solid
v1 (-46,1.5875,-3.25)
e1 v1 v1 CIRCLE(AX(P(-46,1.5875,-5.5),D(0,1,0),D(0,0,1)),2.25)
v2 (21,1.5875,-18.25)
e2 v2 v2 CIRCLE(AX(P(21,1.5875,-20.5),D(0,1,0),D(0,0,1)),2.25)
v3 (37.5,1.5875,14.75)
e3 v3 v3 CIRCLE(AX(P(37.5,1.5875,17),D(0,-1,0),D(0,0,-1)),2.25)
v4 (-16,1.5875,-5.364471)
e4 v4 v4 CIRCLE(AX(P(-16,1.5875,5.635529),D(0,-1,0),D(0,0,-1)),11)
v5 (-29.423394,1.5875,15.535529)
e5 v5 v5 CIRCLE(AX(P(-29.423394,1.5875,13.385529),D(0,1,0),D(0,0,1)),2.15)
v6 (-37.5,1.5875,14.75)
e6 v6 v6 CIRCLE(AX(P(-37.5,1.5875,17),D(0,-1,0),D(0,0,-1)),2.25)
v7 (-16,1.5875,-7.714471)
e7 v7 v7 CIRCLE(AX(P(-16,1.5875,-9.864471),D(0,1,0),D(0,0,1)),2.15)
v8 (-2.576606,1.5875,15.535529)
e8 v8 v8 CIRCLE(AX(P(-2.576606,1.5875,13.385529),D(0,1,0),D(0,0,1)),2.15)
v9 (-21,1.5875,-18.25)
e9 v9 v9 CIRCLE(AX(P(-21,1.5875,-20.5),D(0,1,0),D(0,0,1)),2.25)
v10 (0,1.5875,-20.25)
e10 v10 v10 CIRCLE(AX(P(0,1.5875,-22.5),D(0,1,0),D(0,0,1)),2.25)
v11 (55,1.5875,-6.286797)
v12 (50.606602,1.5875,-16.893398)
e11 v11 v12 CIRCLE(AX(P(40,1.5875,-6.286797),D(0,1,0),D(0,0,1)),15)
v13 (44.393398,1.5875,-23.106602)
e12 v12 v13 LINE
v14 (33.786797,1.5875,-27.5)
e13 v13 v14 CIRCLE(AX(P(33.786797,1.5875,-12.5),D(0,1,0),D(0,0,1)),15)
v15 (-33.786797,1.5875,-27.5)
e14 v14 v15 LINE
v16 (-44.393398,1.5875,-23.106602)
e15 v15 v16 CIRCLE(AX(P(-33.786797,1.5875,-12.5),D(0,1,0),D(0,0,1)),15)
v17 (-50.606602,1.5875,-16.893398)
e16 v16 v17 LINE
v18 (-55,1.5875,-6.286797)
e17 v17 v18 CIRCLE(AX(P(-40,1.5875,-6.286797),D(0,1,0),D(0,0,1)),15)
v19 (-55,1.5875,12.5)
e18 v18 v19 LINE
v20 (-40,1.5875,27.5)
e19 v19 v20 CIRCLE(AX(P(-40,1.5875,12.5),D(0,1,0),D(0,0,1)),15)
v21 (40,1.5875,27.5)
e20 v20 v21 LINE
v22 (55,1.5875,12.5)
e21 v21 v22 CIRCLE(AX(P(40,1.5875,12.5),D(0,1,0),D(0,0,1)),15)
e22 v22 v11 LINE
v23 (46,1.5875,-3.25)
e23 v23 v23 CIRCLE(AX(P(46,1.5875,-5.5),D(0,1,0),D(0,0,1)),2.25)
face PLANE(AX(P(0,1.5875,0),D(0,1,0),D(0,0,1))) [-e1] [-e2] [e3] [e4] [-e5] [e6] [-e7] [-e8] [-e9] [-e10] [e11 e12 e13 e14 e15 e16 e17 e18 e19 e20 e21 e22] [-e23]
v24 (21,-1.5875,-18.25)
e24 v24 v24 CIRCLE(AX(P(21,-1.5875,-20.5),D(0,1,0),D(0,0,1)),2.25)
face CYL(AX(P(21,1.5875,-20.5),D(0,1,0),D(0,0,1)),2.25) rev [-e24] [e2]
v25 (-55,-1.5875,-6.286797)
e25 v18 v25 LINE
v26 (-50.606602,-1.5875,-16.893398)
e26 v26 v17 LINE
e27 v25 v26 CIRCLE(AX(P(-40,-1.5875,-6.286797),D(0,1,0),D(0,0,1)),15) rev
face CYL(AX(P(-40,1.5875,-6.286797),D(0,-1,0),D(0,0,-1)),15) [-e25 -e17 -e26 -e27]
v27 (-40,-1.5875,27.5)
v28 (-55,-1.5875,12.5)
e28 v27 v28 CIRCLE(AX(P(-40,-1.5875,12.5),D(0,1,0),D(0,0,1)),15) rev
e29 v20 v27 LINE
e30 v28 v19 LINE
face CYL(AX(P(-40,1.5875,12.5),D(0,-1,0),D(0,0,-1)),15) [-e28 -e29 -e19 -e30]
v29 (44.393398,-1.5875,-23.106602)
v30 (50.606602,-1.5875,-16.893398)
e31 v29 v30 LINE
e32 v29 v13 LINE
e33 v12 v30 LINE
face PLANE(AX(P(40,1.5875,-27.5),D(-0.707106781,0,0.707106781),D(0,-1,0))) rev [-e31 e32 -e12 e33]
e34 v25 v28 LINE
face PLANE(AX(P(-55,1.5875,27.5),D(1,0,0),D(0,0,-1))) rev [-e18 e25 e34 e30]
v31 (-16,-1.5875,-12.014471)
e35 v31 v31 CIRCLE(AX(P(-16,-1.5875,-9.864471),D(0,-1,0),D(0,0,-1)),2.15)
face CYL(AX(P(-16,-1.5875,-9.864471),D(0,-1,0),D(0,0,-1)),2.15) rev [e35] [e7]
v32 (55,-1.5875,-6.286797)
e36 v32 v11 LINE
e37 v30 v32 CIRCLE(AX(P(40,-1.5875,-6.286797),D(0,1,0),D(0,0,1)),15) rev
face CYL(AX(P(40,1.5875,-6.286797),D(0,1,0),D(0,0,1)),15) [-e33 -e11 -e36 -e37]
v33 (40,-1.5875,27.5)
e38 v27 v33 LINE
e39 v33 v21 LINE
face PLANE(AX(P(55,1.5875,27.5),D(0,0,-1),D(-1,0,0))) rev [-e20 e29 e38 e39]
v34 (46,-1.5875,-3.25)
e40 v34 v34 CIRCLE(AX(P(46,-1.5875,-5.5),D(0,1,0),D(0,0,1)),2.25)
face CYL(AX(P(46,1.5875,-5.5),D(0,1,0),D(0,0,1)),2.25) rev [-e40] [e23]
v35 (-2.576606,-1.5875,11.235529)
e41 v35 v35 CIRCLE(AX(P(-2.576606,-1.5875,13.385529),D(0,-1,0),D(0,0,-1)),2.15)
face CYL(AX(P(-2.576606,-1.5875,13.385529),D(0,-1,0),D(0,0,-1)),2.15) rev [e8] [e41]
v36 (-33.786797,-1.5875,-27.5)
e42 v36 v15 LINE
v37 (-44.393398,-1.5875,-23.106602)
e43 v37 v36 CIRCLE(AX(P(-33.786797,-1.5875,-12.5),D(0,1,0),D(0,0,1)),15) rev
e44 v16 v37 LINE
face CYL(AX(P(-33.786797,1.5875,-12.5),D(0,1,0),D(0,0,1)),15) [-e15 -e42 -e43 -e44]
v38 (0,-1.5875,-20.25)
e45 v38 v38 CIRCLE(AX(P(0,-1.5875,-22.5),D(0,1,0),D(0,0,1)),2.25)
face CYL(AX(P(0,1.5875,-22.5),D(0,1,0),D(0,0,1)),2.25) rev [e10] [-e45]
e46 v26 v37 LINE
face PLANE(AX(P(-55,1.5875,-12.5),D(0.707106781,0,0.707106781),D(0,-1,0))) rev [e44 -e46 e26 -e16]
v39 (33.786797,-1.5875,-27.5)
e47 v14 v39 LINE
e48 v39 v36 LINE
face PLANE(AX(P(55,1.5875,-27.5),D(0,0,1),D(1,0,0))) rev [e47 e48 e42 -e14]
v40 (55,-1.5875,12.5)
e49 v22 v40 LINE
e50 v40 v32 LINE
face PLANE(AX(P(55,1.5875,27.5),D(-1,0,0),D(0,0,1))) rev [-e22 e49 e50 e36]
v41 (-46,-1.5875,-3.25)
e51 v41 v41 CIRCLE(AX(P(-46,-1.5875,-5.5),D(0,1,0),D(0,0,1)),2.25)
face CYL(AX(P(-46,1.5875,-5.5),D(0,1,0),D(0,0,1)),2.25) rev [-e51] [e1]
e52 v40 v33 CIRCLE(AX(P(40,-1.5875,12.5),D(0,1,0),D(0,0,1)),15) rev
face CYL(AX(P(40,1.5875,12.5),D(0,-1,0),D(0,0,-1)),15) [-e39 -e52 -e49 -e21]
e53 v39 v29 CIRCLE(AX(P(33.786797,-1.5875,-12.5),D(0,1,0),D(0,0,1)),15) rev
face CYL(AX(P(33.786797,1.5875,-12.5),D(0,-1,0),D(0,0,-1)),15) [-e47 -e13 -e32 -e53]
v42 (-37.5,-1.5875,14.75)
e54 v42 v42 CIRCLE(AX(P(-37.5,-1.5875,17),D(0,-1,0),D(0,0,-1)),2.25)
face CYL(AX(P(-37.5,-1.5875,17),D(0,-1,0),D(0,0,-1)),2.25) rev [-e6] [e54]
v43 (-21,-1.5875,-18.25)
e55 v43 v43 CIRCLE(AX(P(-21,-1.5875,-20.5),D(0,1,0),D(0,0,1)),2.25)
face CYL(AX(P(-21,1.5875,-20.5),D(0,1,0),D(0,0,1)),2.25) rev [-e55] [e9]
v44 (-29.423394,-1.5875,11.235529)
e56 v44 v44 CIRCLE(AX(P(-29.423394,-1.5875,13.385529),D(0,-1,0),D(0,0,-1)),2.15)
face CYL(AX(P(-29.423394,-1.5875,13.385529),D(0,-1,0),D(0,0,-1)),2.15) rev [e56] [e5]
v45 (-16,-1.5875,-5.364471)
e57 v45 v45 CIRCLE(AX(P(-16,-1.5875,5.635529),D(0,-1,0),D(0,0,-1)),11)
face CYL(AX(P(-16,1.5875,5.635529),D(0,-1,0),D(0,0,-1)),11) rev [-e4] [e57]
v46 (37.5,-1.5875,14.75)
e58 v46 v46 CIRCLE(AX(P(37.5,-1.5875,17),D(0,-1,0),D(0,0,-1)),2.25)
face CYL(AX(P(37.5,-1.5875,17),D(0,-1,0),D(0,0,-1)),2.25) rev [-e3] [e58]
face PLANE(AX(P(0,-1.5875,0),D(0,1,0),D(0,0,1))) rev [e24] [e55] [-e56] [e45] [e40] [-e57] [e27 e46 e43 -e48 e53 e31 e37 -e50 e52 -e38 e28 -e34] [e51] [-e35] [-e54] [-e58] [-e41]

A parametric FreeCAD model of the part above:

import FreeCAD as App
import Part
import Sketcher
from FreeCAD import Vector


def edges_at(feature, points):
    """Names of the edges that pass closest to the given points."""
    edges = feature.Shape.Edges
    near = lambda p: min(range(len(edges)), key=lambda i: edges[i].distToShape(Part.Vertex(*p))[0])
    return sorted({f"Edge{near(p) + 1}" for p in points})


def add_polygon(sketch, points):
    """Adds a closed chain of lines whose ends are joined by coincident constraints."""
    first, n = sketch.GeometryCount, len(points)
    for a, b in zip(points, points[1:] + points[:1]):
        sketch.addGeometry(Part.LineSegment(App.Vector(*a, 0), App.Vector(*b, 0)), False)
    for i in range(n):
        sketch.addConstraint(Sketcher.Constraint("Coincident", first + i, 2, first + (i + 1) % n, 1))

doc = App.newDocument("Part")
params = doc.addObject("Spreadsheet::Sheet", "Params")
for row, (alias, value) in enumerate([
    ("sketch1_width", "110 mm"),
    ("sketch1_height", "55 mm"),
    ("pad1_length", "3.175 mm"),
    ("sketch2_diameter", "4.5 mm"),
    ("hole_diameter", "4.5 mm"),
    ("sketch3_diameter", "4.5 mm"),
    ("hole2_diameter", "4.5 mm"),
    ("chamfer_size", "15 mm"),
    ("fillet_radius", "15 mm"),
    ("sketch4_diameter", "22 mm"),
    ("sketch5_diameter", "4.3 mm"),
    ("hole3_diameter", "4.3 mm"),
    ("hole3_depth", "3.175 mm"),
], start=1):
    params.set(f"A{row}", alias)
    params.set(f"B{row}", "=" + value)
    params.setAlias(f"B{row}", alias)

body = doc.addObject("PartDesign::Body", "Body")

sketch1 = body.newObject("Sketcher::SketchObject", "Sketch")
sketch1.AttachmentSupport = (doc.getObject("XZ_Plane"), [""])
sketch1.MapMode = "FlatFace"
add_polygon(sketch1, [(-55, -28), (-55, 28), (55, 28), (55, -28)])
sketch1.addConstraint([
    Sketcher.Constraint("Vertical", 0),
    Sketcher.Constraint("Horizontal", 1),
    Sketcher.Constraint("Vertical", 2),
    Sketcher.Constraint("Horizontal", 3),
    Sketcher.Constraint("Symmetric", 0, 2, 2, 2, -1, 1),
    Sketcher.Constraint("DistanceX", 1, 1, 1, 2, 110.0),
    Sketcher.Constraint("DistanceY", 0, 1, 0, 2, 55.0),
])
sketch1.setExpression("Constraints[9]", "Params.sketch1_width")
sketch1.setExpression("Constraints[10]", "Params.sketch1_height")
pad1 = body.newObject("PartDesign::Pad", "Pad")
pad1.Profile = sketch1
pad1.setExpression("Length", "Params.pad1_length")
pad1.Midplane = True

sketch2 = body.newObject("Sketcher::SketchObject", "Sketch001")
sketch2.AttachmentSupport = (doc.getObject("XZ_Plane"), [""])
sketch2.MapMode = "FlatFace"
sketch2.AttachmentOffset = App.Placement(Vector(0, 0, -1.5875), App.Rotation())
sketch2.addGeometry([
    Part.Circle(Vector(-46, -5.5, 0), Vector(0, 0, 1), 2.2),
    Part.Circle(Vector(-21, -20.5, 0), Vector(0, 0, 1), 2.2),
    Part.Circle(Vector(21, -20.5, 0), Vector(0, 0, 1), 2.2),
    Part.Circle(Vector(46, -5.5, 0), Vector(0, 0, 1), 2.2),
    Part.Circle(Vector(0, -22.5, 0), Vector(0, 0, 1), 2.2),
], False)
sketch2.addConstraint([
    Sketcher.Constraint("Equal", 0, 1),
    Sketcher.Constraint("Equal", 1, 2),
    Sketcher.Constraint("Equal", 2, 3),
    Sketcher.Constraint("Equal", 3, 4),
    Sketcher.Constraint("Symmetric", 1, 3, 2, 3, -2),
    Sketcher.Constraint("Symmetric", 0, 3, 3, 3, -2),
    Sketcher.Constraint("PointOnObject", 4, 3, -2),
    Sketcher.Constraint("Diameter", 0, 4.5),
    Sketcher.Constraint("DistanceX", 0, 3, -1, 1, 46.0),
    Sketcher.Constraint("DistanceX", 1, 3, -1, 1, 21.0),
    Sketcher.Constraint("DistanceY", 1, 3, 0, 3, 15.0),
    Sketcher.Constraint("DistanceY", 4, 3, 1, 3, 2.0),
    Sketcher.Constraint("DistanceY", 0, 3, -1, 1, 5.5),
])
sketch2.setExpression("Constraints[7]", "Params.sketch2_diameter")
doc.recompute()
hole = body.newObject("PartDesign::Hole", "Hole")
hole.Profile = sketch2
hole.ThreadType = "None"
hole.setExpression("Diameter", "Params.hole_diameter")
hole.DepthType = "ThroughAll"
hole.Reversed = True

sketch3 = body.newObject("Sketcher::SketchObject", "Sketch002")
sketch3.AttachmentSupport = (doc.getObject("XZ_Plane"), [""])
sketch3.MapMode = "FlatFace"
sketch3.AttachmentOffset = App.Placement(Vector(0, 0, 1.5875), App.Rotation())
sketch3.addGeometry([
    Part.Circle(Vector(-37.5, 17, 0), Vector(0, 0, 1), 2.2),
    Part.Circle(Vector(37.5, 17, 0), Vector(0, 0, 1), 2.2),
], False)
sketch3.addConstraint([
    Sketcher.Constraint("Equal", 0, 1),
    Sketcher.Constraint("Symmetric", 0, 3, 1, 3, -2),
    Sketcher.Constraint("Diameter", 0, 4.5),
    Sketcher.Constraint("DistanceY", -1, 1, 0, 3, 17.0),
    Sketcher.Constraint("DistanceX", 0, 3, 1, 3, 75.0),
])
sketch3.setExpression("Constraints[2]", "Params.sketch3_diameter")
doc.recompute()
hole2 = body.newObject("PartDesign::Hole", "Hole001")
hole2.Profile = sketch3
hole2.ThreadType = "None"
hole2.setExpression("Diameter", "Params.hole2_diameter")
hole2.DepthType = "ThroughAll"
doc.recompute()

chamfer = body.newObject("PartDesign::Chamfer", "Chamfer")
chamfer.Base = (hole2, edges_at(hole2, [(-55, 0, -27.5), (55, 0, -27.5)]))
chamfer.setExpression("Size", "Params.chamfer_size")
doc.recompute()

fillet = body.newObject("PartDesign::Fillet", "Fillet")
fillet.Base = (chamfer, edges_at(chamfer, [
    (-55, 0, -12.5),
    (40, 0, -27.5),
    (-40, 0, -27.5),
    (55, 0, -12.5),
    (55, 0, 27.5),
    (-55, 0, 27.5),
]))
fillet.setExpression("Radius", "Params.fillet_radius")

sketch4 = body.newObject("Sketcher::SketchObject", "Sketch003")
sketch4.AttachmentSupport = (doc.getObject("XZ_Plane"), [""])
sketch4.MapMode = "FlatFace"
sketch4.AttachmentOffset = App.Placement(Vector(0, 0, 1.5875), App.Rotation())
sketch4.addGeometry(Part.Circle(Vector(-16, 6, 0), Vector(0, 0, 1), 11), False)
sketch4.addConstraint([
    Sketcher.Constraint("Diameter", 0, 22.0),
    Sketcher.Constraint("DistanceX", 0, 3, -1, 1, 16.0),
    Sketcher.Constraint("DistanceY", -1, 1, 0, 3, 5.635529),
])
sketch4.setExpression("Constraints[0]", "Params.sketch4_diameter")
pocket1 = body.newObject("PartDesign::Pocket", "Pocket")
pocket1.Profile = sketch4
pocket1.Type = "ThroughAll"

sketch5 = body.newObject("Sketcher::SketchObject", "Sketch004")
sketch5.AttachmentSupport = (doc.getObject("XZ_Plane"), [""])
sketch5.MapMode = "FlatFace"
sketch5.AttachmentOffset = App.Placement(Vector(0, 0, 1.5875), App.Rotation())
sketch5.addGeometry([
    Part.Circle(Vector(-16, -9.9, 0), Vector(0, 0, 1), 2.1),
    Part.Circle(Vector(-2.6, 13.4, 0), Vector(0, 0, 1), 2.1),
    Part.Circle(Vector(-29.4, 13.4, 0), Vector(0, 0, 1), 2.1),
], False)
sketch5.addConstraint([
    Sketcher.Constraint("Equal", 0, 1),
    Sketcher.Constraint("Equal", 1, 2),
    Sketcher.Constraint("Horizontal", 1, 3, 2, 3),
    Sketcher.Constraint("Diameter", 0, 4.3),
    Sketcher.Constraint("DistanceX", 0, 3, -1, 1, 16.0),
    Sketcher.Constraint("DistanceY", 0, 3, 1, 3, 23.25),
    Sketcher.Constraint("DistanceY", 0, 3, -1, 1, 9.864471),
    Sketcher.Constraint("DistanceX", 1, 3, -1, 1, 2.576606),
    Sketcher.Constraint("DistanceX", 2, 3, -1, 1, 29.423394),
])
sketch5.setExpression("Constraints[3]", "Params.sketch5_diameter")
doc.recompute()
hole3 = body.newObject("PartDesign::Hole", "Hole002")
hole3.Profile = sketch5
hole3.ThreadType = "None"
hole3.setExpression("Diameter", "Params.hole3_diameter")
hole3.DepthType = "Dimension"
hole3.setExpression("Depth", "Params.hole3_depth")
hole3.DrillPoint = "Flat"

doc.recompute()
